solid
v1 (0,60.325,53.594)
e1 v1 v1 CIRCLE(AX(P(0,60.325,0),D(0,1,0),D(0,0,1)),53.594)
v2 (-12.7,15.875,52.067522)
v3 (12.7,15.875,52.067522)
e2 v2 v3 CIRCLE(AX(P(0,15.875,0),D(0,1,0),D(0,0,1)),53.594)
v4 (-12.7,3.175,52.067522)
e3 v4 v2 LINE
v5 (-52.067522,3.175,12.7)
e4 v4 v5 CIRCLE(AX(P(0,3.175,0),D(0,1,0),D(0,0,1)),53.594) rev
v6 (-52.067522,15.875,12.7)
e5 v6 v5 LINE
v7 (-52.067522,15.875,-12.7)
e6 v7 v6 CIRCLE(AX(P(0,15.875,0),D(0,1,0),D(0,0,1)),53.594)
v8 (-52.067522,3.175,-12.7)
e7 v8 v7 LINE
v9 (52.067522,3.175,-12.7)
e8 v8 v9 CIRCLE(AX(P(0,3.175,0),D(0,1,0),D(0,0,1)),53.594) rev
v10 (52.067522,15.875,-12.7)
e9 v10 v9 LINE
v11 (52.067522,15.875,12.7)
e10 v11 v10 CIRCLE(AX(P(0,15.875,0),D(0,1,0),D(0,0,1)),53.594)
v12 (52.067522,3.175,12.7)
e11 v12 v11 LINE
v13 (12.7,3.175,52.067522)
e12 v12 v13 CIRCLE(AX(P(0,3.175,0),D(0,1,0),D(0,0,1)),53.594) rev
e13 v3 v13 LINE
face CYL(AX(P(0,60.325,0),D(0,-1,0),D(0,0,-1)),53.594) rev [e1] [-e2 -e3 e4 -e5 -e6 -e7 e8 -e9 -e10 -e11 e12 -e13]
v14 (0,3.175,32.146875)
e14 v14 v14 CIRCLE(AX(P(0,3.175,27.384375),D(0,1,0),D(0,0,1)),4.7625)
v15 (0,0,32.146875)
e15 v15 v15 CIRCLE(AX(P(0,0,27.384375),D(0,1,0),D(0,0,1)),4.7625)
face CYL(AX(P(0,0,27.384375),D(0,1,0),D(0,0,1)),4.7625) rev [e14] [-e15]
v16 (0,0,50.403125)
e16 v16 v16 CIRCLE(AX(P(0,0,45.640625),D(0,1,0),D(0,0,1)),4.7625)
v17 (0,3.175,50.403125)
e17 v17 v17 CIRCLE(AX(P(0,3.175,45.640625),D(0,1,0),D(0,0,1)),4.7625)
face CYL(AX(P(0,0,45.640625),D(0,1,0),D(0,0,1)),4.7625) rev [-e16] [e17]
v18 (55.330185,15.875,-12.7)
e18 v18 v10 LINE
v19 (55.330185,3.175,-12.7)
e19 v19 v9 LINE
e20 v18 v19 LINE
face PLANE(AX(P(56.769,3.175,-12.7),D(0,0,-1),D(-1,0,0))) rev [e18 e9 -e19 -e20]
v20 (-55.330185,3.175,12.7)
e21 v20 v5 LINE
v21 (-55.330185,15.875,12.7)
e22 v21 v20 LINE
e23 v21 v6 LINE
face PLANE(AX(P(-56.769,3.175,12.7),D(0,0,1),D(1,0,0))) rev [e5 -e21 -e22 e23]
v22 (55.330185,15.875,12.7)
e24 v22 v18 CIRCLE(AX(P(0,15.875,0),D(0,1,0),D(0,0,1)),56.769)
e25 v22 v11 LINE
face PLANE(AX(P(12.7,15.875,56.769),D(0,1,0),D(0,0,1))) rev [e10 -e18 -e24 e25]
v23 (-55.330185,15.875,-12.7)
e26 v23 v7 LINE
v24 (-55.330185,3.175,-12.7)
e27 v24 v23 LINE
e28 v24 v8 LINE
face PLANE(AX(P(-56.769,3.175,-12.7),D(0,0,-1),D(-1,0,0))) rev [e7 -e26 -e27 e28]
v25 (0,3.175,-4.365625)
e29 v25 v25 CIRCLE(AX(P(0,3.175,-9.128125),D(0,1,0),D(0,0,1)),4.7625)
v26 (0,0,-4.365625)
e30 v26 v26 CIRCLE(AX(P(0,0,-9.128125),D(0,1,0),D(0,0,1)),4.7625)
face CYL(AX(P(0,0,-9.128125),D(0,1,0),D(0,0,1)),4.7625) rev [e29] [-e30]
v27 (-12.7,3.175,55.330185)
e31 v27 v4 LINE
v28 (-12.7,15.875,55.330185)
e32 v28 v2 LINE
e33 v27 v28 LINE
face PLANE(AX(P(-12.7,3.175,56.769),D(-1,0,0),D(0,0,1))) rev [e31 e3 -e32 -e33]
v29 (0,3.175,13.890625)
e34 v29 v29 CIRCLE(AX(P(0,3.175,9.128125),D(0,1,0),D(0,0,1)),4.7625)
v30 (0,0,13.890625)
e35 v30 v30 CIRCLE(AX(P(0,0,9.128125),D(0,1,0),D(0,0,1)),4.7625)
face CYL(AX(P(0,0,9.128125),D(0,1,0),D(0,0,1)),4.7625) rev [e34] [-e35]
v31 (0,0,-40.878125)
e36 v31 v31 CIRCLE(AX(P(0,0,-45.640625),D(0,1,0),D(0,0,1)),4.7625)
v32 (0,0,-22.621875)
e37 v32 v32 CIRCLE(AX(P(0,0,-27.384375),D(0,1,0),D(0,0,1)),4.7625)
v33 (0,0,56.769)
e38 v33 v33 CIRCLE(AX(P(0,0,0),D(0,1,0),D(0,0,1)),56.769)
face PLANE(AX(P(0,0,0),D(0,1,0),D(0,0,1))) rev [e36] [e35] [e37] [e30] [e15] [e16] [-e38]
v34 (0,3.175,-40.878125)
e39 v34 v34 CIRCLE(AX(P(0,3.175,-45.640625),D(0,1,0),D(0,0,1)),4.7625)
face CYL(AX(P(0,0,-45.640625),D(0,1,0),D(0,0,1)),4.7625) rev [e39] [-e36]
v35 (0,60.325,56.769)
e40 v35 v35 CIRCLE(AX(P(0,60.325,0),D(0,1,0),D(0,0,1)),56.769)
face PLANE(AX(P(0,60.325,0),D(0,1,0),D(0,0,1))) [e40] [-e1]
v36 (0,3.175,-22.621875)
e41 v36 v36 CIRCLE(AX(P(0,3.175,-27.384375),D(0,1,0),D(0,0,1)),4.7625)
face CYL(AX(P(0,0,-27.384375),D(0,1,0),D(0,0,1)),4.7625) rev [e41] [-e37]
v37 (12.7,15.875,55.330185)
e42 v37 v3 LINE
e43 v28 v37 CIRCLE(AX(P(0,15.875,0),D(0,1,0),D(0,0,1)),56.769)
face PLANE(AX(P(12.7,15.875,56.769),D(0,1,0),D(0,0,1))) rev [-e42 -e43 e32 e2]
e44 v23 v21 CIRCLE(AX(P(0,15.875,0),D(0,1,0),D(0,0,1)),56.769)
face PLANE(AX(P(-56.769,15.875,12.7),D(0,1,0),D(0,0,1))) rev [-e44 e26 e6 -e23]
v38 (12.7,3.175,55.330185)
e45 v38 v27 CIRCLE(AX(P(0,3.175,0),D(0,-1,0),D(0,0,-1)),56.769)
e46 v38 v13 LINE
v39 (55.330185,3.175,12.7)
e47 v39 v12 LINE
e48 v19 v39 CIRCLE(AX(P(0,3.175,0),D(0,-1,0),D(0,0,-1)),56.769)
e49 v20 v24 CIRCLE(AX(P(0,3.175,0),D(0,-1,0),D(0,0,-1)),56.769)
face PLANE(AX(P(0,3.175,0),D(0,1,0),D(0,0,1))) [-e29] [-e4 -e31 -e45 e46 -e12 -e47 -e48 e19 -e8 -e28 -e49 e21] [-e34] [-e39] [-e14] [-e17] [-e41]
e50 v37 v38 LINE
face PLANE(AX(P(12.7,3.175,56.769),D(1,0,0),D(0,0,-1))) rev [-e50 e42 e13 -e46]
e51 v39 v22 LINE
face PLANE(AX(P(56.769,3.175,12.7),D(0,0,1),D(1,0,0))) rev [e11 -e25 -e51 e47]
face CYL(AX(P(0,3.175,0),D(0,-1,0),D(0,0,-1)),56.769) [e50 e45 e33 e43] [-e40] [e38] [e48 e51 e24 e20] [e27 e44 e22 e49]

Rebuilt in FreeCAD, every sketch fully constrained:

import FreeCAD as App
import Part
import Sketcher
Q = App.Units.Quantity

doc = App.newDocument("Part")
body = doc.addObject("PartDesign::Body", "Body")

# Sketch on XZ plane
sketch1 = body.newObject("Sketcher::SketchObject", "Sketch")
sketch1.AttachmentSupport = (doc.getObject("XZ_Plane"), [""])
sketch1.MapMode = "FlatFace"
sketch1.addGeometry(Part.Circle(App.Vector(0, 0, 0), App.Vector(0, 0, 1), 57), False)
sketch1.addConstraint([
    Sketcher.Constraint("Coincident", 0, 3, -1, 1),
    Sketcher.Constraint("Diameter", 0, Q("4.47 in")),
])
pad1 = body.newObject("PartDesign::Pad", "Pad")
pad1.Profile = sketch1
pad1.Length = Q("0.125 in")
pad1.Reversed = True

# Sketch on XZ plane
sketch2 = body.newObject("Sketcher::SketchObject", "Sketch001")
sketch2.AttachmentSupport = (doc.getObject("XZ_Plane"), [""])
sketch2.MapMode = "FlatFace"
sketch2.AttachmentOffset = App.Placement(App.Vector(0, 0, -0.125 * 25.4), App.Rotation())
sketch2.addGeometry([
    Part.Circle(App.Vector(0, 0, 0), App.Vector(0, 0, 1), 57),
    Part.Circle(App.Vector(0, 0, 0), App.Vector(0, 0, 1), 54),
], False)
sketch2.addConstraint([
    Sketcher.Constraint("Coincident", 0, 3, -1, 1),
    Sketcher.Constraint("Coincident", 1, 3, -1, 1),
    Sketcher.Constraint("Diameter", 0, Q("4.47 in")),
    Sketcher.Constraint("Diameter", 1, Q("4.22 in")),
])
pad2 = body.newObject("PartDesign::Pad", "Pad001")
pad2.Profile = sketch2
pad2.Length = Q("2.25 in")
pad2.Reversed = True

# Sketch on YZ plane
sketch3 = body.newObject("Sketcher::SketchObject", "Sketch002")
sketch3.AttachmentSupport = (doc.getObject("YZ_Plane"), [""])
sketch3.MapMode = "FlatFace"
sketch3.addGeometry([
    Part.LineSegment(App.Vector(16, 13, 0), App.Vector(3, 13, 0)),
    Part.LineSegment(App.Vector(3, 13, 0), App.Vector(3, -13, 0)),
    Part.LineSegment(App.Vector(3, -13, 0), App.Vector(16, -13, 0)),
    Part.LineSegment(App.Vector(16, -13, 0), App.Vector(16, 13, 0)),
], False)
sketch3.addConstraint([
    Sketcher.Constraint("Coincident", 0, 2, 1, 1),
    Sketcher.Constraint("Coincident", 1, 2, 2, 1),
    Sketcher.Constraint("Coincident", 2, 2, 3, 1),
    Sketcher.Constraint("Coincident", 3, 2, 0, 1),
    Sketcher.Constraint("Horizontal", 0),
    Sketcher.Constraint("Vertical", 1),
    Sketcher.Constraint("Horizontal", 2),
    Sketcher.Constraint("Vertical", 3),
    Sketcher.Constraint("DistanceY", 1, 2, 1, 1, Q("1 in")),
    Sketcher.Constraint("DistanceX", 0, 2, 0, 1, Q("0.5 in")),
    Sketcher.Constraint("DistanceY", -1, 1, 0, 2, Q("0.5 in")),
    Sketcher.Constraint("DistanceX", -1, 1, 0, 2, Q("0.125 in")),
])
pocket1 = body.newObject("PartDesign::Pocket", "Pocket")
pocket1.Profile = sketch3
pocket1.Type = "ThroughAll"
doc.recompute()

polarpattern = body.newObject("PartDesign::PolarPattern", "PolarPattern")
polarpattern.Originals = [pocket1]
polarpattern.Axis = (doc.getObject("Y_Axis"), [""])
polarpattern.Angle = 180
polarpattern.Occurrences = 3
body.Tip = polarpattern

# Sketch on XZ plane
sketch4 = body.newObject("Sketcher::SketchObject", "Sketch003")
sketch4.AttachmentSupport = (doc.getObject("XZ_Plane"), [""])
sketch4.MapMode = "FlatFace"
sketch4.AttachmentOffset = App.Placement(App.Vector(0, 0, -0.125 * 25.4), App.Rotation())
sketch4.addGeometry([
    Part.Circle(App.Vector(0, -45.6, 0), App.Vector(0, 0, 1), 4.8),  # 0
    Part.Circle(App.Vector(0, -27.4, 0), App.Vector(0, 0, 1), 4.8),  # 1
    Part.Circle(App.Vector(0, -9.1, 0), App.Vector(0, 0, 1), 4.8),  # 2
    Part.Circle(App.Vector(0, 9.1, 0), App.Vector(0, 0, 1), 4.8),  # 3
    Part.Circle(App.Vector(0, 27.4, 0), App.Vector(0, 0, 1), 4.8),  # 4
    Part.Circle(App.Vector(0, 45.6, 0), App.Vector(0, 0, 1), 4.8),  # 5
], False)
sketch4.addConstraint([
    Sketcher.Constraint("Equal", 0, 1),
    Sketcher.Constraint("Equal", 1, 2),
    Sketcher.Constraint("Equal", 2, 3),
    Sketcher.Constraint("Equal", 3, 4),
    Sketcher.Constraint("Equal", 4, 5),
    Sketcher.Constraint("Symmetric", 2, 3, 3, 3, -1, 1),
    Sketcher.Constraint("Symmetric", 1, 3, 4, 3, -1, 1),
    Sketcher.Constraint("Symmetric", 0, 3, 5, 3, -1, 1),
    Sketcher.Constraint("PointOnObject", 0, 3, -2),
    Sketcher.Constraint("PointOnObject", 1, 3, -2),
    Sketcher.Constraint("PointOnObject", 2, 3, -2),
    Sketcher.Constraint("Diameter", 0, Q("0.375 in")),
    Sketcher.Constraint("DistanceY", 0, 3, -1, 1, Q("1.796875 in")),
    Sketcher.Constraint("DistanceY", 1, 3, -1, 1, Q("1.078125 in")),
    Sketcher.Constraint("DistanceY", 2, 3, -1, 1, Q("0.359375 in")),
])
pocket2 = body.newObject("PartDesign::Pocket", "Pocket001")
pocket2.Profile = sketch4
pocket2.Type = "ThroughAll"
pocket2.Reversed = True

doc.recompute()
